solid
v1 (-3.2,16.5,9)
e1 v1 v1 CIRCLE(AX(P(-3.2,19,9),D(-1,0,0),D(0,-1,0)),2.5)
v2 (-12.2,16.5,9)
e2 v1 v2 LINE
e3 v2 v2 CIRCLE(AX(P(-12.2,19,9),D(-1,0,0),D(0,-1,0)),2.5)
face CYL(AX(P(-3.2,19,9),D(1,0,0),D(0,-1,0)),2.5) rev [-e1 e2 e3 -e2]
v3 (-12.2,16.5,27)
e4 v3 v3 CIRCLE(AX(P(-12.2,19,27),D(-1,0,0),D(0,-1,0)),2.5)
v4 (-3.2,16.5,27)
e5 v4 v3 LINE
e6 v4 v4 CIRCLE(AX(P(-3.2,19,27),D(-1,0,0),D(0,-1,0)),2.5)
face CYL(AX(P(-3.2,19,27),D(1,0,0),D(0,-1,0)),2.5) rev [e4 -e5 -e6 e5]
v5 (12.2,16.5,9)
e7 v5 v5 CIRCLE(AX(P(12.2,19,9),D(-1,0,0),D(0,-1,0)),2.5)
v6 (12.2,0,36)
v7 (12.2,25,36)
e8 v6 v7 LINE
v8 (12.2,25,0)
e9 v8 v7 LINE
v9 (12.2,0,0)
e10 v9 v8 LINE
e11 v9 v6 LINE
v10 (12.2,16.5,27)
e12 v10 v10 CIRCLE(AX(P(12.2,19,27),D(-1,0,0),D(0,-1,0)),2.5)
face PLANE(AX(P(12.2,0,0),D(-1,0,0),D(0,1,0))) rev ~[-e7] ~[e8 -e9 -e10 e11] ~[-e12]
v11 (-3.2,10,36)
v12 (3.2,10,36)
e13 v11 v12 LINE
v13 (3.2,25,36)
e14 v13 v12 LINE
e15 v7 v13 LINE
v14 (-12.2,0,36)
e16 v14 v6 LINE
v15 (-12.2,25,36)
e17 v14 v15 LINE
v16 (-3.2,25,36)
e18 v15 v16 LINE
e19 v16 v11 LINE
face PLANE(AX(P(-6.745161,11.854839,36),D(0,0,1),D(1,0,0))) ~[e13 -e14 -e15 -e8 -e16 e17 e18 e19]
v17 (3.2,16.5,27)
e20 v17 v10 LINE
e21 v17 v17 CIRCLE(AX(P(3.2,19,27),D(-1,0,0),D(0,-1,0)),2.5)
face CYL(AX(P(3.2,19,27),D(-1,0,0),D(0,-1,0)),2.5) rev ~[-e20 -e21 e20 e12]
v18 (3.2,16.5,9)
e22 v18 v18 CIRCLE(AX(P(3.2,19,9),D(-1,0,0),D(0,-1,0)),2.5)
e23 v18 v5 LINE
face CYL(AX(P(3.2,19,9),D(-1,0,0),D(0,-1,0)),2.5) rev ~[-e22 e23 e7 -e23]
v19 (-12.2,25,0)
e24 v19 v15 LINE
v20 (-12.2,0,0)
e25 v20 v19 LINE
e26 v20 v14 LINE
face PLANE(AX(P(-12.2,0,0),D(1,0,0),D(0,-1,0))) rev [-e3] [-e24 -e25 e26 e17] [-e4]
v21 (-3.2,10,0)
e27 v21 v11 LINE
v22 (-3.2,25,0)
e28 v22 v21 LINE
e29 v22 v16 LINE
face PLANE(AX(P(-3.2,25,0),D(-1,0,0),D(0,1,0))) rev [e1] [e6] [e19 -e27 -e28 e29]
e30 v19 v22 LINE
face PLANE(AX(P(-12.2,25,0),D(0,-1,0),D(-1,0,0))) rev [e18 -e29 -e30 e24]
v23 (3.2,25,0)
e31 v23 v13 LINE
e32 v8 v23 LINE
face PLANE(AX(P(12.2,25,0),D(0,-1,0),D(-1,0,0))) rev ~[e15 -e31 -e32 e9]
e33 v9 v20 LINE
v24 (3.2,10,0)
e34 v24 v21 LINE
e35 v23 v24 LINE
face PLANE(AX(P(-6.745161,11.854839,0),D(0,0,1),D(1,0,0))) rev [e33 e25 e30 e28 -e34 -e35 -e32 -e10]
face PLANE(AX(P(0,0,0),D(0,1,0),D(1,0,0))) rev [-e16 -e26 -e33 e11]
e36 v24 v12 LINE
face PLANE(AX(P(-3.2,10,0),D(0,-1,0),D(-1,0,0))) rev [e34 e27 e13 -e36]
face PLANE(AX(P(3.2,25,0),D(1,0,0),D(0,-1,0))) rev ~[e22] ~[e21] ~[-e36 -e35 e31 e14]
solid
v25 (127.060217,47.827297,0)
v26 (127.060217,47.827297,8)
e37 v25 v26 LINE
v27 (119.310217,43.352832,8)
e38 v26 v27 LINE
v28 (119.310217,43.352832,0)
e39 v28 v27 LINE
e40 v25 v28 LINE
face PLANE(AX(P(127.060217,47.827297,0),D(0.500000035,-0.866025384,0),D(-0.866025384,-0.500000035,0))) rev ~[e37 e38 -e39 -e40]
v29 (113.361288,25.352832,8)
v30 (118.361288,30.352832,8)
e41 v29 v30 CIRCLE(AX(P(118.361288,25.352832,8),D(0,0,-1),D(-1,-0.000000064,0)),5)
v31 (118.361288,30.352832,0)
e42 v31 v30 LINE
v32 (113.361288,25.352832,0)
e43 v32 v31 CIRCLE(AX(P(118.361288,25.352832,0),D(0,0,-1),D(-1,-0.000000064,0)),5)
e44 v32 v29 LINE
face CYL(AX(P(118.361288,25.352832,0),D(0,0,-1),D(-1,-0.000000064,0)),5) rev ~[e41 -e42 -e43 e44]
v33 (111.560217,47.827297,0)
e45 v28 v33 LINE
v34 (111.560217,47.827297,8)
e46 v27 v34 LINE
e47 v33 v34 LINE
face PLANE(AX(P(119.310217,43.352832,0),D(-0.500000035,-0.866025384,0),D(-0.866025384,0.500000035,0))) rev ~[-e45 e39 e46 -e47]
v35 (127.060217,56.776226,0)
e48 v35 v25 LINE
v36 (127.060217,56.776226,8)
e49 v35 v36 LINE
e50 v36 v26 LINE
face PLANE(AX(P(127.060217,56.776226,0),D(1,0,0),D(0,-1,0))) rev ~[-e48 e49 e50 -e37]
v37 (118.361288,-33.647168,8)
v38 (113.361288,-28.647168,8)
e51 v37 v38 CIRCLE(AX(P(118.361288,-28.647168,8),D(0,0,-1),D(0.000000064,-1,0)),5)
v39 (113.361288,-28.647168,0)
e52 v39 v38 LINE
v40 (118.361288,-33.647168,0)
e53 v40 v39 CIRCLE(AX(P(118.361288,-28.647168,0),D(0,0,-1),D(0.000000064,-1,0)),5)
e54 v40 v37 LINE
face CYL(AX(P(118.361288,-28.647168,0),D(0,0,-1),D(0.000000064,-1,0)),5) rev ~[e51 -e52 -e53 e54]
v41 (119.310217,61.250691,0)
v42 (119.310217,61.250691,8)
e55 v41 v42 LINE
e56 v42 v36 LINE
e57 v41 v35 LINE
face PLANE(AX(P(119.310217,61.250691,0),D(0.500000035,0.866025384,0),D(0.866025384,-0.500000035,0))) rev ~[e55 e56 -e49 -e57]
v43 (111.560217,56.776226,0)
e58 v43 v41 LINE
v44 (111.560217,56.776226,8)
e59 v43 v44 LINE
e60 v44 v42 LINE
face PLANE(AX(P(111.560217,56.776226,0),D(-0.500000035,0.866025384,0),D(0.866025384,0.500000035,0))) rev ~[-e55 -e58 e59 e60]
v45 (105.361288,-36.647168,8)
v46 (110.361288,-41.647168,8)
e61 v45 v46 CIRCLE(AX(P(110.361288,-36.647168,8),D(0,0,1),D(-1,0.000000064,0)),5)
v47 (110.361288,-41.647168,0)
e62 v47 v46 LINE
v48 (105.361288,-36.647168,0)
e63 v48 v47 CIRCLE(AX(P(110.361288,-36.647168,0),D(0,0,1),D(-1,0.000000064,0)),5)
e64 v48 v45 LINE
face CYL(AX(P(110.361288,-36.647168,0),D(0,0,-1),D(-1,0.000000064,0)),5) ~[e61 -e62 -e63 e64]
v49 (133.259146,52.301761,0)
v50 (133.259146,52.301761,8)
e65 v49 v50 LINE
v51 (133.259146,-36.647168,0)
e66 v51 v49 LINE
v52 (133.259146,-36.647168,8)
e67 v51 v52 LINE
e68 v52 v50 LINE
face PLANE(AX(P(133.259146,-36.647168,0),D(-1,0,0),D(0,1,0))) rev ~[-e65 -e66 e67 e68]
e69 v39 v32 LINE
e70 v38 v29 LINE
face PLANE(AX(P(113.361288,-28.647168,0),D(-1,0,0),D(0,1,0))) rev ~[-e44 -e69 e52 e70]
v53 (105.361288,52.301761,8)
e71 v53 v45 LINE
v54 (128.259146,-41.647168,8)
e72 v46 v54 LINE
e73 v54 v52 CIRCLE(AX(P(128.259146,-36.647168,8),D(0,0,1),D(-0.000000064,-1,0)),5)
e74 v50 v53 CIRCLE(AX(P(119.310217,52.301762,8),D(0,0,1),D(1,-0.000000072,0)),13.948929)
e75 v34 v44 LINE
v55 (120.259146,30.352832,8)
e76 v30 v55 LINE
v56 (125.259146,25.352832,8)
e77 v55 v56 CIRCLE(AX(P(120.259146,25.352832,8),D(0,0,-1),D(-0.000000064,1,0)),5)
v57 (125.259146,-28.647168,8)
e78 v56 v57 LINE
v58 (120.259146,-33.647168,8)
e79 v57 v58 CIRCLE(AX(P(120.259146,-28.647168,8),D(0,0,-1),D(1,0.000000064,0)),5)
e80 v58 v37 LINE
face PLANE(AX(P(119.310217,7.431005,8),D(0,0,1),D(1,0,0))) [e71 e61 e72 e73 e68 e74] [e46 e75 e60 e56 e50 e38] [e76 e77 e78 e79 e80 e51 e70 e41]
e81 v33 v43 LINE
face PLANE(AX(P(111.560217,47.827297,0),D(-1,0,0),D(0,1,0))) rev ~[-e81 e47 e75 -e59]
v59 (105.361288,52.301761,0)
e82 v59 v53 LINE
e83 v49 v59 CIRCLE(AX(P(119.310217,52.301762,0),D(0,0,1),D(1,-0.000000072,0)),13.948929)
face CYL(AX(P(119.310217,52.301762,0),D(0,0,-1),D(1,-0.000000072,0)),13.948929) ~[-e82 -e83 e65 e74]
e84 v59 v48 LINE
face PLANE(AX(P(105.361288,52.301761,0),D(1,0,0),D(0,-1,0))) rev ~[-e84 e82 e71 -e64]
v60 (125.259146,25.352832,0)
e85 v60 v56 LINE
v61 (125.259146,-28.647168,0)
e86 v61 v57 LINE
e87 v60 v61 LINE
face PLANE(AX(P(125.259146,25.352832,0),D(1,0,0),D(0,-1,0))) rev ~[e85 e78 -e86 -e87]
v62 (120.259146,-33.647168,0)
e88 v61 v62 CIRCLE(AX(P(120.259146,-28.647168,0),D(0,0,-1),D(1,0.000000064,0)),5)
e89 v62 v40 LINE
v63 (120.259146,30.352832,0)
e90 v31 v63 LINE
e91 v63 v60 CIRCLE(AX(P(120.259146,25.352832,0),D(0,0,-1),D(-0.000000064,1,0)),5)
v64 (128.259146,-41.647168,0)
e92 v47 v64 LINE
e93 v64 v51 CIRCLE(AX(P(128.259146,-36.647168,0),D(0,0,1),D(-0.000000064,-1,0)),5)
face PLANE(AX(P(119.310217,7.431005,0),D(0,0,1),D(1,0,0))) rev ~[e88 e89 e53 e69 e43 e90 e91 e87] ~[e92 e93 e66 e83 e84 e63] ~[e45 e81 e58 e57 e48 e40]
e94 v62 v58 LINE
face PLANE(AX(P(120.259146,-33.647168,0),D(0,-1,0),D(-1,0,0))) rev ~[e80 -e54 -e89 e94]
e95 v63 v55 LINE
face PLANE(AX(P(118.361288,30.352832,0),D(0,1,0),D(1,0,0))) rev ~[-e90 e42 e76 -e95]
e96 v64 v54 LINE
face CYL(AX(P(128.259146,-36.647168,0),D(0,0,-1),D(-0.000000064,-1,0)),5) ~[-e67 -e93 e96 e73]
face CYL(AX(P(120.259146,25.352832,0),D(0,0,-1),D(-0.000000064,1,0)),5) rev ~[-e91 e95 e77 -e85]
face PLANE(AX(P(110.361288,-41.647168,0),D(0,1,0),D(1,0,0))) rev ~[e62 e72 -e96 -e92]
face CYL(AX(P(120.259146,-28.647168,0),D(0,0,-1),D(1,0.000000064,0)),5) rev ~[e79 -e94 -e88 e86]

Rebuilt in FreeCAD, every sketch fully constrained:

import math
import FreeCAD as App
import Part
import Sketcher
Q = App.Units.Quantity

doc = App.newDocument("Part")
body = doc.addObject("PartDesign::Body", "Body")

sketch1 = doc.addObject("Sketcher::SketchObject", "Sketch")
body.addObject(sketch1)
sketch1.AttachmentSupport = (doc.XY_Plane, [""])
sketch1.MapMode = "FlatFace"
sketch1.addGeometry([
    Part.LineSegment(App.Vector(0, 10, 0), App.Vector(0, 0, 0)),
    Part.LineSegment(App.Vector(0, 0, 0), App.Vector(12.2, 0, 0)),
    Part.LineSegment(App.Vector(12.2, 0, 0), App.Vector(12.2, 25, 0)),
    Part.LineSegment(App.Vector(12.2, 25, 0), App.Vector(3.2, 25, 0)),
    Part.LineSegment(App.Vector(3.2, 25, 0), App.Vector(3.2, 10, 0)),
    Part.LineSegment(App.Vector(3.2, 10, 0), App.Vector(0, 10, 0)),
], False)
sketch1.addConstraint([
    Sketcher.Constraint("Coincident", 0, 2, 1, 1),
    Sketcher.Constraint("Coincident", 1, 2, 2, 1),
    Sketcher.Constraint("Coincident", 2, 2, 3, 1),
    Sketcher.Constraint("Coincident", 3, 2, 4, 1),
    Sketcher.Constraint("Coincident", 4, 2, 5, 1),
    Sketcher.Constraint("Coincident", 5, 2, 0, 1),
    Sketcher.Constraint("Vertical", 0),
    Sketcher.Constraint("Horizontal", 1),
    Sketcher.Constraint("Vertical", 2),
    Sketcher.Constraint("Horizontal", 3),
    Sketcher.Constraint("Vertical", 4),
    Sketcher.Constraint("Horizontal", 5),
    Sketcher.Constraint("Coincident", 0, 2, -1, 1),
    Sketcher.Constraint("DistanceX", 3, 2, 3, 1, Q("9 mm")),
    Sketcher.Constraint("DistanceY", 0, 2, 0, 1, Q("10 mm")),
    Sketcher.Constraint("DistanceY", 2, 1, 2, 2, Q("25 mm")),
    Sketcher.Constraint("DistanceX", 1, 1, 1, 2, Q("12.2 mm")),
])
pad1 = doc.addObject("PartDesign::Pad", "Pad")
body.addObject(pad1)
pad1.Profile = sketch1
pad1.Length = 36

sketch2 = doc.addObject("Sketcher::SketchObject", "Sketch001")
body.addObject(sketch2)
sketch2.AttachmentSupport = (doc.YZ_Plane, [""])
sketch2.MapMode = "FlatFace"
sketch2.AttachmentOffset = App.Placement(App.Vector(0, 0, 3.2), App.Rotation())
sketch2.addGeometry([
    Part.Circle(App.Vector(19, 27, 0), App.Vector(0, 0, 1), 2.5),
    Part.Circle(App.Vector(19, 9, 0), App.Vector(0, 0, 1), 2.5),
], False)
sketch2.addConstraint([
    Sketcher.Constraint("Equal", 0, 1),
    Sketcher.Constraint("Vertical", 0, 3, 1, 3),
    Sketcher.Constraint("Diameter", 0, Q("5 mm")),
    Sketcher.Constraint("DistanceX", -1, 1, 0, 3, Q("19 mm")),
    Sketcher.Constraint("DistanceY", -1, 1, 0, 3, Q("27 mm")),
    Sketcher.Constraint("DistanceY", -1, 1, 1, 3, Q("9 mm")),
])
pocket1 = doc.addObject("PartDesign::Pocket", "Pocket")
body.addObject(pocket1)
pocket1.Profile = sketch2
pocket1.Type = "ThroughAll"
pocket1.Reversed = True
body2 = doc.addObject("PartDesign::Body", "Body001")
doc.recompute()

body2.BaseFeature = body
doc.recompute()

mirroring = doc.addObject("Part::Mirroring", "Mirroring")
mirroring.Source = body
mirroring.Base = App.Vector(0, 5, 18)
mirroring.Normal = App.Vector(-1, 0, 0)
body3 = doc.addObject("PartDesign::Body", "Body002")
body3.BaseFeature = mirroring
boolean = doc.addObject("PartDesign::Boolean", "Boolean")
body2.addObject(boolean)
boolean.Type = "Fuse"
boolean.addObjects([body3])
doc.recompute()
body4 = doc.addObject("PartDesign::Body", "Body003")

sketch3 = doc.addObject("Sketcher::SketchObject", "Sketch002")
body4.addObject(sketch3)
sketch3.AttachmentSupport = (doc.getObject("XY_Plane003"), [""])
sketch3.MapMode = "FlatFace"
sketch3.addGeometry([
    Part.LineSegment(App.Vector(133.3, -36.6, 0), App.Vector(133.3, 52.3, 0)),
    Part.ArcOfCircle(Part.Circle(App.Vector(119.3, 52.3, 0), App.Vector(0, 0, 1), 13.9), math.radians(0), math.radians(180)),
    Part.LineSegment(App.Vector(105.4, 52.3, 0), App.Vector(105.4, -36.6, 0)),
    Part.ArcOfCircle(Part.Circle(App.Vector(110.4, -36.6, 0), App.Vector(0, 0, 1), 5), math.radians(180), math.radians(270)),
    Part.LineSegment(App.Vector(110.4, -41.6, 0), App.Vector(128.3, -41.6, 0)),
    Part.ArcOfCircle(Part.Circle(App.Vector(128.3, -36.6, 0), App.Vector(0, 0, 1), 5), math.radians(-90), math.radians(0)),
    Part.LineSegment(App.Vector(113.4, -28.6, 0), App.Vector(113.4, 25.4, 0)),
    Part.ArcOfCircle(Part.Circle(App.Vector(118.4, 25.4, 0), App.Vector(0, 0, 1), 5), math.radians(90), math.radians(180)),
    Part.LineSegment(App.Vector(118.4, 30.4, 0), App.Vector(120.3, 30.4, 0)),
    Part.ArcOfCircle(Part.Circle(App.Vector(120.3, 25.4, 0), App.Vector(0, 0, 1), 5), math.radians(0), math.radians(90)),
    Part.LineSegment(App.Vector(125.3, 25.4, 0), App.Vector(125.3, -28.6, 0)),
    Part.ArcOfCircle(Part.Circle(App.Vector(120.3, -28.6, 0), App.Vector(0, 0, 1), 5), math.radians(-90), math.radians(0)),
    Part.LineSegment(App.Vector(120.3, -33.6, 0), App.Vector(118.4, -33.6, 0)),
    Part.ArcOfCircle(Part.Circle(App.Vector(118.4, -28.6, 0), App.Vector(0, 0, 1), 5), math.radians(180), math.radians(270)),
    Part.LineSegment(App.Vector(119.3, 61.3, 0), App.Vector(127.1, 56.8, 0)),
    Part.LineSegment(App.Vector(127.1, 56.8, 0), App.Vector(127.1, 47.8, 0)),
    Part.LineSegment(App.Vector(127.1, 47.8, 0), App.Vector(119.3, 43.4, 0)),
    Part.LineSegment(App.Vector(119.3, 43.4, 0), App.Vector(111.6, 47.8, 0)),
    Part.LineSegment(App.Vector(111.6, 47.8, 0), App.Vector(111.6, 56.8, 0)),
    Part.LineSegment(App.Vector(111.6, 56.8, 0), App.Vector(119.3, 61.3, 0)),
], False)
sketch3.addConstraint([
    Sketcher.Constraint("Tangent", 0, 2, 1, 1),
    Sketcher.Constraint("Tangent", 1, 2, 2, 1),
    Sketcher.Constraint("Tangent", 2, 2, 3, 1),
    Sketcher.Constraint("Tangent", 3, 2, 4, 1),
    Sketcher.Constraint("Tangent", 4, 2, 5, 1),
    Sketcher.Constraint("Tangent", 5, 2, 0, 1),
    Sketcher.Constraint("Tangent", 6, 2, 7, 2),
    Sketcher.Constraint("Tangent", 7, 1, 8, 1),
    Sketcher.Constraint("Tangent", 8, 2, 9, 2),
    Sketcher.Constraint("Tangent", 9, 1, 10, 1),
    Sketcher.Constraint("Tangent", 10, 2, 11, 2),
    Sketcher.Constraint("Tangent", 11, 1, 12, 1),
    Sketcher.Constraint("Tangent", 12, 2, 13, 2),
    Sketcher.Constraint("Tangent", 13, 1, 6, 1),
    Sketcher.Constraint("Coincident", 14, 2, 15, 1),
    Sketcher.Constraint("Coincident", 15, 2, 16, 1),
    Sketcher.Constraint("Coincident", 16, 2, 17, 1),
    Sketcher.Constraint("Coincident", 17, 2, 18, 1),
    Sketcher.Constraint("Coincident", 18, 2, 19, 1),
    Sketcher.Constraint("Coincident", 19, 2, 14, 1),
    Sketcher.Constraint("Vertical", 0),
    Sketcher.Constraint("Vertical", 2),
    Sketcher.Constraint("Horizontal", 4),
    Sketcher.Constraint("Vertical", 6),
    Sketcher.Constraint("Horizontal", 8),
    Sketcher.Constraint("Vertical", 10),
    Sketcher.Constraint("Horizontal", 12),
    Sketcher.Constraint("Vertical", 15),
    Sketcher.Constraint("Vertical", 18),
    Sketcher.Constraint("Equal", 3, 5),
    Sketcher.Constraint("Equal", 5, 7),
    Sketcher.Constraint("Equal", 7, 9),
    Sketcher.Constraint("Equal", 9, 11),
    Sketcher.Constraint("Equal", 11, 13),
    Sketcher.Constraint("Parallel", 14, 17),
    Sketcher.Constraint("Parallel", 16, 19),
    Sketcher.Constraint("Horizontal", 15, 2, 17, 2),
    Sketcher.Constraint("Horizontal", 14, 2, 18, 2),
    Sketcher.Constraint("Vertical", 1, 3, 16, 2),
    Sketcher.Constraint("Vertical", 16, 2, 19, 2),
    Sketcher.Constraint("Radius", 3, Q("5 mm")),
    Sketcher.Constraint("DistanceY", 6, 1, 6, 2, Q("54 mm")),
    Sketcher.Constraint("Angle", 14, Q("-30.000002 deg")),
    Sketcher.Constraint("DistanceX", 3, 3, 7, 3, Q("8 mm")),
    Sketcher.Constraint("DistanceY", 3, 3, 7, 3, Q("62.000001 mm")),
    Sketcher.Constraint("DistanceX", 9, 3, 5, 3, Q("8 mm")),
    Sketcher.Constraint("DistanceY", 8, 2, 16, 2, Q("13 mm")),
    Sketcher.Constraint("DistanceX", 17, 2, 15, 2, Q("15.5 mm")),
    Sketcher.Constraint("Radius", 1, Q("13.948929 mm")),
    Sketcher.Constraint("DistanceY", 0, 1, 0, 2, Q("88.948929 mm")),
    Sketcher.Constraint("DistanceY", 15, 2, 15, 1, Q("8.948929 mm")),
    Sketcher.Constraint("DistanceY", -1, 1, 1, 3, Q("52.301762 mm")),
    Sketcher.Constraint("DistanceX", -1, 1, 1, 2, Q("105.361288 mm")),
])
pad2 = doc.addObject("PartDesign::Pad", "Pad001")
body4.addObject(pad2)
pad2.Profile = sketch3
pad2.Length = 8
mirroring.Visibility = False

doc.recompute()
